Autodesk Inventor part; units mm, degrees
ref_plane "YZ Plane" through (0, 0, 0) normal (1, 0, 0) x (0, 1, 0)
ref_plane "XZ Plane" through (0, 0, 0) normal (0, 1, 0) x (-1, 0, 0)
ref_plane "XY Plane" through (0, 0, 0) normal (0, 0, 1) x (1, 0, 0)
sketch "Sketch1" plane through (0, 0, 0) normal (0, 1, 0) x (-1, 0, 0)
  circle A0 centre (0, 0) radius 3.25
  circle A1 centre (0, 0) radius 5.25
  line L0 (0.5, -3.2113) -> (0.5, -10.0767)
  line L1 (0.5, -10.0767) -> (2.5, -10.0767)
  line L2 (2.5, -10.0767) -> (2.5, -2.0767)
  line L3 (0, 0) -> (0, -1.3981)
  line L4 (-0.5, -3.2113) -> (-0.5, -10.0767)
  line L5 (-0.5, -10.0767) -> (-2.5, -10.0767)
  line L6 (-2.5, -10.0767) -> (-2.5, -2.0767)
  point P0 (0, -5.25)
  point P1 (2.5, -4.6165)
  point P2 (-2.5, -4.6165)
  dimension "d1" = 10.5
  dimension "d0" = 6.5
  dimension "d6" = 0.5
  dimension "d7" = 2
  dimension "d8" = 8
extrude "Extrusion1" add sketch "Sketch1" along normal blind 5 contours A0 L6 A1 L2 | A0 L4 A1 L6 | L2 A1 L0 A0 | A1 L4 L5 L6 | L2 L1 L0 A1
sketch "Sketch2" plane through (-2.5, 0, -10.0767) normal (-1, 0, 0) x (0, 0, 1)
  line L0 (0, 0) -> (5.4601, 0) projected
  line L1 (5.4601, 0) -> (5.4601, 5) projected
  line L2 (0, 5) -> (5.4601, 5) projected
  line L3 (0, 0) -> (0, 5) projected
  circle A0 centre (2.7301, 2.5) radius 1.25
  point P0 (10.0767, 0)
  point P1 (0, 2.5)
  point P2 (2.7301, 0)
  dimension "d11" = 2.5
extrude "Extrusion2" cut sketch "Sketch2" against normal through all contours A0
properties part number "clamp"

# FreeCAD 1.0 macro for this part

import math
import FreeCAD as App
import Part
import Sketcher

V = App.Vector

doc = App.newDocument("Part")
body = doc.addObject("PartDesign::Body", "Body")

sketch1 = body.newObject("Sketcher::SketchObject", "Sketch")
sketch1.AttachmentSupport = (doc.getObject("XZ_Plane"), [""])
sketch1.MapMode = "FlatFace"
sketch1.addGeometry(Part.LineSegment(V(-0.5, -3.2113, 0), V(-0.5, -10.0767, 0)), False)
sketch1.addGeometry(Part.LineSegment(V(-0.5, -10.0767, 0), V(-2.5, -10.0767, 0)), False)
sketch1.addGeometry(Part.LineSegment(V(-2.5, -10.0767, 0), V(-2.5, -4.616546, 0)), False)
sketch1.addGeometry(Part.ArcOfCircle(Part.Circle(V(0, 0, 0), V(0, 0, 1), 5.25), math.radians(-61.56311), math.radians(241.56311)), False)
sketch1.addGeometry(Part.LineSegment(V(2.5, -4.616546, 0), V(2.5, -10.0767, 0)), False)
sketch1.addGeometry(Part.LineSegment(V(2.5, -10.0767, 0), V(0.5, -10.0767, 0)), False)
sketch1.addGeometry(Part.LineSegment(V(0.5, -10.0767, 0), V(0.5, -3.2113, 0)), False)
sketch1.addGeometry(Part.ArcOfCircle(Part.Circle(V(0, 0, 0), V(0, 0, 1), 3.25), math.radians(-81.150095), math.radians(261.150095)), False)
sketch1.addConstraint(Sketcher.Constraint("Coincident", 0, 2, 1, 1))
sketch1.addConstraint(Sketcher.Constraint("Coincident", 1, 2, 2, 1))
sketch1.addConstraint(Sketcher.Constraint("Coincident", 2, 2, 3, 2))
sketch1.addConstraint(Sketcher.Constraint("Coincident", 3, 1, 4, 1))
sketch1.addConstraint(Sketcher.Constraint("Coincident", 4, 2, 5, 1))
sketch1.addConstraint(Sketcher.Constraint("Coincident", 5, 2, 6, 1))
sketch1.addConstraint(Sketcher.Constraint("Coincident", 6, 2, 7, 1))
sketch1.addConstraint(Sketcher.Constraint("Coincident", 7, 2, 0, 1))
sketch1.addConstraint(Sketcher.Constraint("Vertical", 0))
sketch1.addConstraint(Sketcher.Constraint("Horizontal", 1))
sketch1.addConstraint(Sketcher.Constraint("Vertical", 2))
sketch1.addConstraint(Sketcher.Constraint("Vertical", 4))
sketch1.addConstraint(Sketcher.Constraint("Horizontal", 5))
sketch1.addConstraint(Sketcher.Constraint("Vertical", 6))
sketch1.addConstraint(Sketcher.Constraint("Coincident", 3, 3, -1, 1))
sketch1.addConstraint(Sketcher.Constraint("Coincident", 7, 3, -1, 1))
sketch1.addConstraint(Sketcher.Constraint("Symmetric", 1, 2, 4, 2, -2))
sketch1.addConstraint(Sketcher.Constraint("Horizontal", 6, 2, 7, 2))
sketch1.addConstraint(Sketcher.Constraint("DistanceX", 1, 2, 1, 1, 2.0))
sketch1.addConstraint(Sketcher.Constraint("Radius", 3, 5.25))
sketch1.addConstraint(Sketcher.Constraint("Radius", 7, 3.25))
sketch1.addConstraint(Sketcher.Constraint("DistanceX", 0, 2, -1, 1, 0.5))
sketch1.addConstraint(Sketcher.Constraint("DistanceY", 0, 2, 0, 1, 6.8654))
pad1 = body.newObject("PartDesign::Pad", "Pad")
pad1.Profile = sketch1
pad1.Length = 5
pad1.Reversed = True

sketch2 = body.newObject("Sketcher::SketchObject", "Sketch001")
sketch2.AttachmentSupport = (doc.getObject("YZ_Plane"), [""])
sketch2.MapMode = "FlatFace"
sketch2.AttachmentOffset = App.Placement(V(0, 0, -2.5), App.Rotation())
sketch2.addGeometry(Part.Circle(V(2.5, -7.3466, 0), V(0, 0, 1), 1.25), False)
sketch2.addConstraint(Sketcher.Constraint("Diameter", 0, 2.5))
sketch2.addConstraint(Sketcher.Constraint("DistanceX", -1, 1, 0, 3, 2.5))
sketch2.addConstraint(Sketcher.Constraint("DistanceY", 0, 3, -1, 1, 7.3466))
pocket1 = body.newObject("PartDesign::Pocket", "Pocket")
pocket1.Profile = sketch2
pocket1.Type = "ThroughAll"
pocket1.Reversed = True

doc.recompute()
